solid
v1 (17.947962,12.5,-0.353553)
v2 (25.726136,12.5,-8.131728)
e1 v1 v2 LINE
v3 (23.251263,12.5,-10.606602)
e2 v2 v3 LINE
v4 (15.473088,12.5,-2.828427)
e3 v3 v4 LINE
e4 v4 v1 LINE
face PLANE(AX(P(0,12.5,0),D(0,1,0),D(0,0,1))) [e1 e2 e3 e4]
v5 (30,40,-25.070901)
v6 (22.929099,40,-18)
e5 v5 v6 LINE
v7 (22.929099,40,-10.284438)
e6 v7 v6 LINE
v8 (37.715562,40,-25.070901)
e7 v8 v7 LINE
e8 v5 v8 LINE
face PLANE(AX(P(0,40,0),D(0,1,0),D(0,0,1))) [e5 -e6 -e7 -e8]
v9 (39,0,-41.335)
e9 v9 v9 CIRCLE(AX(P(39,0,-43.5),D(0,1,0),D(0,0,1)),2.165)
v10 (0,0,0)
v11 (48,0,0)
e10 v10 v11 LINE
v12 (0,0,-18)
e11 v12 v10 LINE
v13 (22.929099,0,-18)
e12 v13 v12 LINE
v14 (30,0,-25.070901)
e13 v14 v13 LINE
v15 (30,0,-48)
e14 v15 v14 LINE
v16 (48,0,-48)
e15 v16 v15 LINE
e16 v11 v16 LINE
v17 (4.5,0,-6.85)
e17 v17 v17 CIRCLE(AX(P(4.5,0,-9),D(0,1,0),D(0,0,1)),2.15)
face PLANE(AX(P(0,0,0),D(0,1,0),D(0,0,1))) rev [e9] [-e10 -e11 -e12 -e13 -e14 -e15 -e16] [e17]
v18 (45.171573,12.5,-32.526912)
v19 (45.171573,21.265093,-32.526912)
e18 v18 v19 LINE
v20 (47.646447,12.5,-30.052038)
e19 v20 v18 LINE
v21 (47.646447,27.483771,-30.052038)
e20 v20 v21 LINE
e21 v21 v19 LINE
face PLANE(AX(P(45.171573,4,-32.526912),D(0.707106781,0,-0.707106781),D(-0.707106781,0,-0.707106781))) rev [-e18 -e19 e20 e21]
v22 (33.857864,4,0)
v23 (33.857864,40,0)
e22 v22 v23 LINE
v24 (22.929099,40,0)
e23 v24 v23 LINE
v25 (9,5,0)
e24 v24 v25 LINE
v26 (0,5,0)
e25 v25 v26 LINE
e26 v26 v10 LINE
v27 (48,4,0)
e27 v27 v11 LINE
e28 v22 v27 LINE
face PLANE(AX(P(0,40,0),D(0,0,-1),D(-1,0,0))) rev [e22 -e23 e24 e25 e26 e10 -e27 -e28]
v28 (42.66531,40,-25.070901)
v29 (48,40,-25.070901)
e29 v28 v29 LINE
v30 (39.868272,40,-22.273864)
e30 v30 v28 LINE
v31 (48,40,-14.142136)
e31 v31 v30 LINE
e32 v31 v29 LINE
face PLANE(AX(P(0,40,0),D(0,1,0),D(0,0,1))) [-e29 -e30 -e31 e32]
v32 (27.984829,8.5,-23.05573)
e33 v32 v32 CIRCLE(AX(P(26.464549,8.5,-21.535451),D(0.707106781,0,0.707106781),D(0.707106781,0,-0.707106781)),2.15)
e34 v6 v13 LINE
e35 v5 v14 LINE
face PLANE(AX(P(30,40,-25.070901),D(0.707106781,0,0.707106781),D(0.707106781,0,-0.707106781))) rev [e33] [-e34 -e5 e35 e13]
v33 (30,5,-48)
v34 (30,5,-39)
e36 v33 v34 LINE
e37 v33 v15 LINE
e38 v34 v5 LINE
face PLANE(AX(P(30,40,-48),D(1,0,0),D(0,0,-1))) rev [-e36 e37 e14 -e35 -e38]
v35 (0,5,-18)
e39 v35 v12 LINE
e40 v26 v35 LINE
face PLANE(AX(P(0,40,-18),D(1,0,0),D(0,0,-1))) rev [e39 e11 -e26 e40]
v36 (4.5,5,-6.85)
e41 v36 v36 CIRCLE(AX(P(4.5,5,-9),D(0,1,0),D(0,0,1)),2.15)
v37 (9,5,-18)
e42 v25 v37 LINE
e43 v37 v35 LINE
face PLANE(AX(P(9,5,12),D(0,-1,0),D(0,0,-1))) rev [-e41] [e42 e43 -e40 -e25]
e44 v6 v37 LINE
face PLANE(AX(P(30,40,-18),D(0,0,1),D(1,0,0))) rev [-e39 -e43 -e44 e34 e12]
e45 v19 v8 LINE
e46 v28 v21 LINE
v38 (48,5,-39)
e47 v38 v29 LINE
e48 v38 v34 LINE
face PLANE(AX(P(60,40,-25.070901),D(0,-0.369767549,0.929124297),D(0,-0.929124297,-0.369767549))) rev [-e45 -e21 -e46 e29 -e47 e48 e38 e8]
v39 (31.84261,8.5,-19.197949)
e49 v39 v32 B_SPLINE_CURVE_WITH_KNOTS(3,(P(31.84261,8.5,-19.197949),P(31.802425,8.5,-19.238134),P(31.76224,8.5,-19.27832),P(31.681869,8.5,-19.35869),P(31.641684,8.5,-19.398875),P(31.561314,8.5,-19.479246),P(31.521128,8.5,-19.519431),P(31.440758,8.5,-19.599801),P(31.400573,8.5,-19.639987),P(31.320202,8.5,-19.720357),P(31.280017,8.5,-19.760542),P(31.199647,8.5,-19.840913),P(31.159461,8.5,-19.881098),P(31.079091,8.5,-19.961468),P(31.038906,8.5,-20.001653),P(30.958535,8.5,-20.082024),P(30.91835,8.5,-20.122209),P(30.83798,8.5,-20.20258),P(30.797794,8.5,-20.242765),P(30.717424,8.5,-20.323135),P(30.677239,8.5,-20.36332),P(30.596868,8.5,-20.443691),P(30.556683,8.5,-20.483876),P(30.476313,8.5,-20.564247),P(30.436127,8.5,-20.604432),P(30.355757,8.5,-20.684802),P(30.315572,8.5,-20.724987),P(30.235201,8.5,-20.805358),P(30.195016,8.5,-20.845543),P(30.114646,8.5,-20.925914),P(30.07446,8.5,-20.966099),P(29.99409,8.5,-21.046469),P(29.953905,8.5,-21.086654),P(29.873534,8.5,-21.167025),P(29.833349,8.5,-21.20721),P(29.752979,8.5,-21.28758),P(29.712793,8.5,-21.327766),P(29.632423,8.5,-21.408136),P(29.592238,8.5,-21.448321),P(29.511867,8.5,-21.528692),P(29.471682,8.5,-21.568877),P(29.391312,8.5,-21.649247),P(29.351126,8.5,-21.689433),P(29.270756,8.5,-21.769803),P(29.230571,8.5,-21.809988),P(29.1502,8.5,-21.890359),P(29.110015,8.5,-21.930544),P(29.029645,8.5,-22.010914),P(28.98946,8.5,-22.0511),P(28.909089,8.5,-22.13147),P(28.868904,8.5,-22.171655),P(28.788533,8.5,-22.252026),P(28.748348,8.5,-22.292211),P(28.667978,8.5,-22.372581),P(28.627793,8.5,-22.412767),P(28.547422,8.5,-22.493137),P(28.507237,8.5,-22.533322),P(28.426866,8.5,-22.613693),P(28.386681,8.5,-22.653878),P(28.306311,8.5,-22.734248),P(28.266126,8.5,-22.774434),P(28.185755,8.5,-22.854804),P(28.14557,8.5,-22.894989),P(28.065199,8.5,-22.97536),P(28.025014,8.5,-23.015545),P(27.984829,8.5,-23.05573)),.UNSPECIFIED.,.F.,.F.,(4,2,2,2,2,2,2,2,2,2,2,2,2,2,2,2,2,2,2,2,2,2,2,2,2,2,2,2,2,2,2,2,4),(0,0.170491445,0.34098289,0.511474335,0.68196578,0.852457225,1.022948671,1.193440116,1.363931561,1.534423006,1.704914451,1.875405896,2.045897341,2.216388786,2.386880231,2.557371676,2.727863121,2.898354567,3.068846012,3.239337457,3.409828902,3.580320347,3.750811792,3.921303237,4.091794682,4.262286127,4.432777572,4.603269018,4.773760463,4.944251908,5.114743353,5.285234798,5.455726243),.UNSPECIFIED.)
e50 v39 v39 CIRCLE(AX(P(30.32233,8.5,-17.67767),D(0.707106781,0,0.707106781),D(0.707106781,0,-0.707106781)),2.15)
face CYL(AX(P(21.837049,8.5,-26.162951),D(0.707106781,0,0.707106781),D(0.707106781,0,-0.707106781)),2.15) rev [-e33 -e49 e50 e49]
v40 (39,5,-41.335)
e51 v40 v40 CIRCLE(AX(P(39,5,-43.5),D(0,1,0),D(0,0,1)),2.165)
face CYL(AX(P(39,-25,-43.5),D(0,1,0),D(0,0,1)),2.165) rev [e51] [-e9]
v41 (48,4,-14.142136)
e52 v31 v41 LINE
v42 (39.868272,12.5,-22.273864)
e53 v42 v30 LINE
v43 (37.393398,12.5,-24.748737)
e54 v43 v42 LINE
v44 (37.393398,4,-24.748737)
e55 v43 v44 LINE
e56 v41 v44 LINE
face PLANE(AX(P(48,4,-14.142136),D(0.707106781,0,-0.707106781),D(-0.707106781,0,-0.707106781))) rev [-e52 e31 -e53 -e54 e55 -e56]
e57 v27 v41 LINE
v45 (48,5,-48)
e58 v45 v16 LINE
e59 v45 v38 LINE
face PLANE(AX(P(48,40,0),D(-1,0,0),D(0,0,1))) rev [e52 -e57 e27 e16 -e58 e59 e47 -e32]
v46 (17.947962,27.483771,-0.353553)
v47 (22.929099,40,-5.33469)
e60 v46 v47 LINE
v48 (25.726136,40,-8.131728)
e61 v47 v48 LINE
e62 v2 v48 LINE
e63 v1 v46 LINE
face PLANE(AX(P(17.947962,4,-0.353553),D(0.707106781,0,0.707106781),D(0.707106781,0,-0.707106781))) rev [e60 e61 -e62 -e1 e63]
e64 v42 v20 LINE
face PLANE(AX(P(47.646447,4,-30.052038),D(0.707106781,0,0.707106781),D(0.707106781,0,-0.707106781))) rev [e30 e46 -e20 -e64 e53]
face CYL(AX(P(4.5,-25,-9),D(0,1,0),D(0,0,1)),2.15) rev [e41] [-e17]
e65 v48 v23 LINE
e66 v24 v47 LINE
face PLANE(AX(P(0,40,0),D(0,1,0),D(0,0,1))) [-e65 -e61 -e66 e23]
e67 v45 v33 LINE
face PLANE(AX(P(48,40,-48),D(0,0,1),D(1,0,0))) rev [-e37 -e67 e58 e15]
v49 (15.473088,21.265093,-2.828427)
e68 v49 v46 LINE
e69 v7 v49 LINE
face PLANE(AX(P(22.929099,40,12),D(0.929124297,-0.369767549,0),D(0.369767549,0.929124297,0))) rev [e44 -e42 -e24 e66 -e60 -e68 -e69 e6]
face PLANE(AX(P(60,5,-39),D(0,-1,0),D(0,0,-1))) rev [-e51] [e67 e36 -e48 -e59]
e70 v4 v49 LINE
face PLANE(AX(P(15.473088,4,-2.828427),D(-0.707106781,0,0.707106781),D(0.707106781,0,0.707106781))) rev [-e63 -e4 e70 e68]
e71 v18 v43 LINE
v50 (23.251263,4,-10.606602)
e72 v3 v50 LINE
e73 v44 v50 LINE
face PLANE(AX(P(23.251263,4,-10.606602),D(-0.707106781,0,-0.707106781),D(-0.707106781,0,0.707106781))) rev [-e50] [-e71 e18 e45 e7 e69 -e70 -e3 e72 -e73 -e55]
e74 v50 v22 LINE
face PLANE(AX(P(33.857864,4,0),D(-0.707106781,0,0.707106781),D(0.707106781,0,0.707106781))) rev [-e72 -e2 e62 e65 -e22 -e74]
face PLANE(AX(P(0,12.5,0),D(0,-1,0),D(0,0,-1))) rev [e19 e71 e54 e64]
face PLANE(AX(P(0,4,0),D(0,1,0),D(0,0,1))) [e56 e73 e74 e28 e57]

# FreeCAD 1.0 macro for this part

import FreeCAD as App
import Part
import Sketcher

V = App.Vector
Q = App.Units.Quantity


def add_polygon(sketch, points):
    """Adds a closed chain of lines whose ends are joined by coincident constraints."""
    first, n = sketch.GeometryCount, len(points)
    for a, b in zip(points, points[1:] + points[:1]):
        sketch.addGeometry(Part.LineSegment(App.Vector(*a, 0), App.Vector(*b, 0)), False)
    for i in range(n):
        sketch.addConstraint(Sketcher.Constraint("Coincident", first + i, 2, first + (i + 1) % n, 1))

doc = App.newDocument("Part")
body = doc.addObject("PartDesign::Body", "Body")

# Sketch on XZ plane
sketch1 = body.newObject("Sketcher::SketchObject", "Sketch")
sketch1.AttachmentSupport = (doc.getObject("XZ_Plane"), [""])
sketch1.MapMode = "FlatFace"
add_polygon(sketch1, [(0, 0), (48, 0), (48, -48), (30, -48), (30, -18), (0, -18)])  # lines 0-5
sketch1.addConstraint([
    Sketcher.Constraint("Horizontal", 0),
    Sketcher.Constraint("Vertical", 1),
    Sketcher.Constraint("Horizontal", 2),
    Sketcher.Constraint("Vertical", 3),
    Sketcher.Constraint("Horizontal", 4),
    Sketcher.Constraint("Vertical", 5),
    Sketcher.Constraint("Coincident", 5, 2, -1, 1),
    Sketcher.Constraint("Equal", 0, 1),
    Sketcher.Constraint("Equal", 4, 3),
    Sketcher.Constraint("DistanceX", 0, 1, 0, 2, Q("48 mm")),
    Sketcher.Constraint("DistanceX", 2, 2, 2, 1, Q("18 mm")),
])
pad1 = body.newObject("PartDesign::Pad", "Pad")
pad1.Profile = sketch1
pad1.Length = 40
pad1.Reversed = True

# Sketch on XZ plane
sketch2 = body.newObject("Sketcher::SketchObject", "Sketch001")
sketch2.AttachmentSupport = (doc.getObject("XZ_Plane"), [""])
sketch2.MapMode = "FlatFace"
sketch2.AttachmentOffset = App.Placement(V(0, 0, -40), App.Rotation())
add_polygon(sketch2, [(48, -14.142136), (39.868272, -22.273864), (47.646447, -30.052038), (45.171573, -32.526912), (15.473088, -2.828427), (17.947962, -0.353553), (25.726136, -8.131728), (33.857864, 0), (41.815186, 7.957321), (55.957321, -6.184814)])  # lines 0-9
sketch2.addConstraint([
    Sketcher.Constraint("PointOnObject", 6, 2, -1),
    Sketcher.Constraint("Perpendicular", 0, 1),
    Sketcher.Constraint("Perpendicular", 1, 2),
    Sketcher.Constraint("Perpendicular", 2, 3),
    Sketcher.Constraint("Perpendicular", 3, 4),
    Sketcher.Constraint("Perpendicular", 4, 5),
    Sketcher.Constraint("Perpendicular", 5, 6),
    Sketcher.Constraint("Parallel", 6, 7),
    Sketcher.Constraint("Perpendicular", 7, 8),
    Sketcher.Constraint("Perpendicular", 8, 9),
    Sketcher.Constraint("Equal", 2, 4),
    Sketcher.Constraint("Equal", 1, 5),
    Sketcher.Constraint("Equal", 0, 6),
    Sketcher.Constraint("Angle", 0, Q("-135 deg")),
    Sketcher.Constraint("Distance", 1, Q("11 mm")),
    Sketcher.Constraint("Distance", 3, Q("42 mm")),
    Sketcher.Constraint("DistanceX", -1, 1, 9, 2, Q("48 mm")),
    Sketcher.Constraint("Distance", 0, Q("11.5 mm")),
    Sketcher.Constraint("Distance", 2, Q("3.5 mm")),
    Sketcher.Constraint("Distance", 7, Q("11.253352 mm")),
])
pocket1 = body.newObject("PartDesign::Pocket", "Pocket")
pocket1.Profile = sketch2
pocket1.Length = 36
pocket1.Reversed = True

# Sketch on XZ plane
sketch3 = body.newObject("Sketcher::SketchObject", "Sketch002")
sketch3.AttachmentSupport = (doc.getObject("XZ_Plane"), [""])
sketch3.MapMode = "FlatFace"
sketch3.AttachmentOffset = App.Placement(V(0, 0, -4), App.Rotation())
add_polygon(sketch3, [(37.393398, -24.748737), (39.868272, -22.273864), (47.646447, -30.052038), (45.171573, -32.526912)])  # lines 0-3
add_polygon(sketch3, [(15.473088, -2.828427), (17.947962, -0.353553), (25.726136, -8.131728), (23.251263, -10.606602)])  # lines 4-7
sketch3.addConstraint([
    Sketcher.Constraint("Perpendicular", 0, 1),
    Sketcher.Constraint("Perpendicular", 1, 2),
    Sketcher.Constraint("Perpendicular", 2, 3),
    Sketcher.Constraint("Perpendicular", 3, 4),
    Sketcher.Constraint("Perpendicular", 4, 5),
    Sketcher.Constraint("Perpendicular", 5, 6),
    Sketcher.Constraint("Perpendicular", 6, 7),
    Sketcher.Constraint("Equal", 2, 4),
    Sketcher.Constraint("Equal", 3, 5),
    Sketcher.Constraint("Angle", 0, Q("45 deg")),
    Sketcher.Constraint("Distance", 1, Q("11 mm")),
    Sketcher.Constraint("Distance", 0, Q("3.5 mm")),
    Sketcher.Constraint("DistanceX", -1, 1, 3, 2, Q("37.393398 mm")),
    Sketcher.Constraint("DistanceY", 6, 2, -1, 1, Q("10.606602 mm")),
    Sketcher.Constraint("DistanceY", 1, 2, -1, 1, Q("30.052038 mm")),
    Sketcher.Constraint("DistanceX", -1, 1, 4, 2, Q("17.947962 mm")),
])
pad2 = body.newObject("PartDesign::Pad", "Pad001")
pad2.Profile = sketch3
pad2.Length = 8.5
pad2.Reversed = True

# Sketch on XZ plane
sketch4 = body.newObject("Sketcher::SketchObject", "Sketch003")
sketch4.AttachmentSupport = (doc.getObject("XZ_Plane"), [""])
sketch4.MapMode = "FlatFace"
add_polygon(sketch4, [(30, -25.070901), (22.929099, -18), (30, -18)])  # lines 0-2
sketch4.addConstraint([
    Sketcher.Constraint("Horizontal", 1),
    Sketcher.Constraint("Vertical", 2),
    Sketcher.Constraint("Equal", 1, 2),
    Sketcher.Constraint("DistanceY", 0, 2, -1, 1, Q("18 mm")),
    Sketcher.Constraint("DistanceX", -1, 1, 1, 2, Q("30 mm")),
    Sketcher.Constraint("DistanceX", 1, 1, 1, 2, Q("7.070901 mm")),
])
pad3 = body.newObject("PartDesign::Pad", "Pad002")
pad3.Profile = sketch4
pad3.Length = 40
pad3.Reversed = True

# Sketch on an angled plane
sketch5 = body.newObject("Sketcher::SketchObject", "Sketch004")
sketch5.Placement = App.Placement(V(6.32233, 0, 6.32233), App.Rotation(V(0.707106781, 0, -0.707106781), V(0, 0.999999999, 0), V(0.707106781, 0, 0.707106781), "ZXY"))
sketch5.addGeometry(Part.Circle(V(33.941125, 8.5, 0), V(0, 0, 1), 2.15), False)
sketch5.addConstraint([
    Sketcher.Constraint("Diameter", 0, Q("4.3 mm")),
    Sketcher.Constraint("DistanceY", -1, 1, 0, 3, Q("8.5 mm")),
    Sketcher.Constraint("DistanceX", -1, 1, 0, 3, Q("33.941125 mm")),
])
pocket2 = body.newObject("PartDesign::Pocket", "Pocket001")
pocket2.Profile = sketch5
pocket2.Length = 12

# Sketch on XY plane
sketch6 = body.newObject("Sketcher::SketchObject", "Sketch005")
sketch6.AttachmentSupport = (doc.getObject("XY_Plane"), [""])
sketch6.MapMode = "FlatFace"
sketch6.AttachmentOffset = App.Placement(V(0, 0, -18), App.Rotation())
add_polygon(sketch6, [(22.929099, 40), (9, 5), (0, 5), (0, 40)])  # lines 0-3
sketch6.addConstraint([
    Sketcher.Constraint("Horizontal", 1),
    Sketcher.Constraint("Vertical", 2),
    Sketcher.Constraint("Horizontal", 3),
    Sketcher.Constraint("PointOnObject", 1, 2, -2),
    Sketcher.Constraint("DistanceX", 1, 2, 1, 1, Q("9 mm")),
    Sketcher.Constraint("DistanceY", 2, 1, 2, 2, Q("35 mm")),
    Sketcher.Constraint("DistanceY", -1, 1, 0, 2, Q("5 mm")),
    Sketcher.Constraint("DistanceX", 3, 1, 3, 2, Q("22.929099 mm")),
])
pocket3 = body.newObject("PartDesign::Pocket", "Pocket002")
pocket3.Profile = sketch6
pocket3.Length = 30
pocket3.Reversed = True

# Sketch on YZ plane
sketch7 = body.newObject("Sketcher::SketchObject", "Sketch006")
sketch7.AttachmentSupport = (doc.getObject("YZ_Plane"), [""])
sketch7.MapMode = "FlatFace"
sketch7.AttachmentOffset = App.Placement(V(0, 0, 30), App.Rotation())
add_polygon(sketch7, [(5, -39), (40, -25.070901), (40, -48), (5, -48)])  # lines 0-3
sketch7.addConstraint([
    Sketcher.Constraint("Vertical", 1),
    Sketcher.Constraint("Horizontal", 2),
    Sketcher.Constraint("Vertical", 3),
    Sketcher.Constraint("DistanceX", 2, 2, 2, 1, Q("35 mm")),
    Sketcher.Constraint("DistanceY", 3, 1, 3, 2, Q("9 mm")),
    Sketcher.Constraint("DistanceX", -1, 1, 0, 2, Q("40 mm")),
    Sketcher.Constraint("DistanceY", 1, 2, -1, 1, Q("48 mm")),
    Sketcher.Constraint("DistanceY", 1, 2, 1, 1, Q("22.929099 mm")),
])
pocket4 = body.newObject("PartDesign::Pocket", "Pocket003")
pocket4.Profile = sketch7
pocket4.Length = 30
pocket4.Reversed = True

# Sketch on XZ plane
sketch8 = body.newObject("Sketcher::SketchObject", "Sketch007")
sketch8.AttachmentSupport = (doc.getObject("XZ_Plane"), [""])
sketch8.MapMode = "FlatFace"
sketch8.AttachmentOffset = App.Placement(V(0, 0, -5), App.Rotation())
sketch8.addGeometry(Part.Circle(V(39, -43.5, 0), V(0, 0, 1), 2.165), False)
sketch8.addConstraint([
    Sketcher.Constraint("Diameter", 0, Q("4.33 mm")),
    Sketcher.Constraint("DistanceX", -1, 1, 0, 3, Q("39 mm")),
    Sketcher.Constraint("DistanceY", 0, 3, -1, 1, Q("43.5 mm")),
])
pocket5 = body.newObject("PartDesign::Pocket", "Pocket004")
pocket5.Profile = sketch8
pocket5.Length = 30
pocket5.Reversed = True

# Sketch on XZ plane
sketch9 = body.newObject("Sketcher::SketchObject", "Sketch008")
sketch9.AttachmentSupport = (doc.getObject("XZ_Plane"), [""])
sketch9.MapMode = "FlatFace"
sketch9.AttachmentOffset = App.Placement(V(0, 0, -5), App.Rotation())
sketch9.addGeometry(Part.Circle(V(4.5, -9, 0), V(0, 0, 1), 2.15), False)
sketch9.addConstraint([
    Sketcher.Constraint("Diameter", 0, Q("4.3 mm")),
    Sketcher.Constraint("DistanceY", 0, 3, -1, 1, Q("9 mm")),
    Sketcher.Constraint("DistanceX", -1, 1, 0, 3, Q("4.5 mm")),
])
pocket6 = body.newObject("PartDesign::Pocket", "Pocket005")
pocket6.Profile = sketch9
pocket6.Length = 30
pocket6.Reversed = True

doc.recompute()
